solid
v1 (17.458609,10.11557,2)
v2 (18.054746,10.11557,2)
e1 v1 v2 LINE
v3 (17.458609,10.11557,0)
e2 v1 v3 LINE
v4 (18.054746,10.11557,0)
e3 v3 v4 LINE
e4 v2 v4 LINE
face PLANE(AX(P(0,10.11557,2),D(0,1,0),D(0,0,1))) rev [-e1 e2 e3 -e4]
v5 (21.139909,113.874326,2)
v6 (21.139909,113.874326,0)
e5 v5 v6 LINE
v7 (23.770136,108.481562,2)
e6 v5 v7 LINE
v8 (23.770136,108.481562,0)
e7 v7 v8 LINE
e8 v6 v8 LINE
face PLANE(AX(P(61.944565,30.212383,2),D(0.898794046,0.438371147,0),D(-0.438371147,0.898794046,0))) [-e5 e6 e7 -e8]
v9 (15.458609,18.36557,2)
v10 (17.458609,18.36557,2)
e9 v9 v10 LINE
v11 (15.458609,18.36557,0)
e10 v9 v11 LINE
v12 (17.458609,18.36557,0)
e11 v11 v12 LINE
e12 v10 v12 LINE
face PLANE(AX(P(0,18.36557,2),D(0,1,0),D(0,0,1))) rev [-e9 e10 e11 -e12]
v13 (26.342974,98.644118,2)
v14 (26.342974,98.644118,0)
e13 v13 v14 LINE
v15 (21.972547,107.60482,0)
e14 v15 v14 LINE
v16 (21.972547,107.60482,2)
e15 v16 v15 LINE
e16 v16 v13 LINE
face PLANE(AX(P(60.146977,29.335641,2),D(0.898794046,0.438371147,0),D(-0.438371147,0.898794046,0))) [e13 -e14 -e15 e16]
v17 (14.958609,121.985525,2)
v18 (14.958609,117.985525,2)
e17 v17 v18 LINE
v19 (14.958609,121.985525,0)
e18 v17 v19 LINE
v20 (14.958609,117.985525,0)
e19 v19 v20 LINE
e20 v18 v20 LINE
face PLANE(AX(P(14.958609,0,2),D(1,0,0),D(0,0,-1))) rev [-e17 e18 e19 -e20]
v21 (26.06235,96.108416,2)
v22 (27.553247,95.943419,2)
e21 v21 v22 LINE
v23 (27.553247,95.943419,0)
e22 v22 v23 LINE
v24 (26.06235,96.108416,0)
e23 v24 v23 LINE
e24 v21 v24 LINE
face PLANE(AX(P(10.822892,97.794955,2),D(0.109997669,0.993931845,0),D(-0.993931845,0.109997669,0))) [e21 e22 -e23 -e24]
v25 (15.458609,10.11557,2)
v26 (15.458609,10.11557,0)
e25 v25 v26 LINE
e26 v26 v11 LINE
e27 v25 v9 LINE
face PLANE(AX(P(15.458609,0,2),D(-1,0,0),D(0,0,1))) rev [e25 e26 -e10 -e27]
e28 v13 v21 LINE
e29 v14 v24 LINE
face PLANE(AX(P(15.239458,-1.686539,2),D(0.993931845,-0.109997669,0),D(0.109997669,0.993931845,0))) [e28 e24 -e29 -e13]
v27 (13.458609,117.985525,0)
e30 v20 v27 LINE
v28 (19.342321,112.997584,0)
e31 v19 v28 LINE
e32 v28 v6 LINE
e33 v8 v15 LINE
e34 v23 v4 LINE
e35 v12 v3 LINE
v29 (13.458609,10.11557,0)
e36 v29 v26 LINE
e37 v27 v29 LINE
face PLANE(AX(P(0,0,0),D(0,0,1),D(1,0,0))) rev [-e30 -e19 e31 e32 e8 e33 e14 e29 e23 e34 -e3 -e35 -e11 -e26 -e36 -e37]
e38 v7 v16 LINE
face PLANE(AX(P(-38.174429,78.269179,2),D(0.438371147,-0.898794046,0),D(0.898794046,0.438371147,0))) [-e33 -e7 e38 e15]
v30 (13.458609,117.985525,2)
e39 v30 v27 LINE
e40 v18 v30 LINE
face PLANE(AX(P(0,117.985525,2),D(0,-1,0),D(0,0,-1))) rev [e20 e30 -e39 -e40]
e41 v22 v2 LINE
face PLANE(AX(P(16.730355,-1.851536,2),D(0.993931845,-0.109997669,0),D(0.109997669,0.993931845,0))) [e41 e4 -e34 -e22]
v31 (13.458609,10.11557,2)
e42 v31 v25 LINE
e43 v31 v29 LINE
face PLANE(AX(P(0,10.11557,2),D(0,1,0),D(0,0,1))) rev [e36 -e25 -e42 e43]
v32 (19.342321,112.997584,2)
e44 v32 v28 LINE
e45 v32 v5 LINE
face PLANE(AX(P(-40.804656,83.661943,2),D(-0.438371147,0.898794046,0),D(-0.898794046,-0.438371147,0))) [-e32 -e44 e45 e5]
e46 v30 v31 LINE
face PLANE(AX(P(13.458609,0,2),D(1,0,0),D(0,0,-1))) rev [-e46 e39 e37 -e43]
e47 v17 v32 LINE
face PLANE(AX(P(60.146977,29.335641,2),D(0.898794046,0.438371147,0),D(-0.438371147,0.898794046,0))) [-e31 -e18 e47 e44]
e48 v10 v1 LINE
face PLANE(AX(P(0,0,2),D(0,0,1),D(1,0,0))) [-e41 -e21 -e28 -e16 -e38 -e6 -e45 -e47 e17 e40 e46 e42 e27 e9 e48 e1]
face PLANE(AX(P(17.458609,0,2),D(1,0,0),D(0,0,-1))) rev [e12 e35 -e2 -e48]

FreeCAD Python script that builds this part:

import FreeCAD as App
import Part
import Sketcher

doc = App.newDocument("Part")
body = doc.addObject("PartDesign::Body", "Body")

# Sketch on XY plane
sketch1 = body.newObject("Sketcher::SketchObject", "Sketch")
sketch1.AttachmentSupport = (doc.getObject("XY_Plane"), [""])
sketch1.MapMode = "FlatFace"
sketch1.addGeometry([
    Part.LineSegment(App.Vector(27.553247, 95.943419, 0), App.Vector(26.06235, 96.108416, 0)),  # 0
    Part.LineSegment(App.Vector(26.06235, 96.108416, 0), App.Vector(26.342974, 98.644118, 0)),  # 1
    Part.LineSegment(App.Vector(26.342974, 98.644118, 0), App.Vector(21.972547, 107.60482, 0)),  # 2
    Part.LineSegment(App.Vector(21.972547, 107.60482, 0), App.Vector(23.770136, 108.481562, 0)),  # 3
    Part.LineSegment(App.Vector(23.770136, 108.481562, 0), App.Vector(21.139909, 113.874326, 0)),  # 4
    Part.LineSegment(App.Vector(21.139909, 113.874326, 0), App.Vector(19.342321, 112.997584, 0)),  # 5
    Part.LineSegment(App.Vector(19.342321, 112.997584, 0), App.Vector(14.958609, 121.985525, 0)),  # 6
    Part.LineSegment(App.Vector(14.958609, 121.985525, 0), App.Vector(14.958609, 117.985525, 0)),  # 7
    Part.LineSegment(App.Vector(14.958609, 117.985525, 0), App.Vector(13.458609, 117.985525, 0)),  # 8
    Part.LineSegment(App.Vector(13.458609, 117.985525, 0), App.Vector(13.458609, 10.11557, 0)),  # 9
    Part.LineSegment(App.Vector(13.458609, 10.11557, 0), App.Vector(15.458609, 10.11557, 0)),  # 10
    Part.LineSegment(App.Vector(15.458609, 10.11557, 0), App.Vector(15.458609, 18.36557, 0)),  # 11
    Part.LineSegment(App.Vector(15.458609, 18.36557, 0), App.Vector(17.458609, 18.36557, 0)),  # 12
    Part.LineSegment(App.Vector(17.458609, 18.36557, 0), App.Vector(17.458609, 10.11557, 0)),  # 13
    Part.LineSegment(App.Vector(17.458609, 10.11557, 0), App.Vector(18.054746, 10.11557, 0)),  # 14
    Part.LineSegment(App.Vector(18.054746, 10.11557, 0), App.Vector(27.553247, 95.943419, 0)),  # 15
], False)
sketch1.addConstraint([
    Sketcher.Constraint("Coincident", 0, 2, 1, 1),
    Sketcher.Constraint("Coincident", 1, 2, 2, 1),
    Sketcher.Constraint("Coincident", 2, 2, 3, 1),
    Sketcher.Constraint("Coincident", 3, 2, 4, 1),
    Sketcher.Constraint("Coincident", 4, 2, 5, 1),
    Sketcher.Constraint("Coincident", 5, 2, 6, 1),
    Sketcher.Constraint("Coincident", 6, 2, 7, 1),
    Sketcher.Constraint("Coincident", 7, 2, 8, 1),
    Sketcher.Constraint("Coincident", 8, 2, 9, 1),
    Sketcher.Constraint("Coincident", 9, 2, 10, 1),
    Sketcher.Constraint("Coincident", 10, 2, 11, 1),
    Sketcher.Constraint("Coincident", 11, 2, 12, 1),
    Sketcher.Constraint("Coincident", 12, 2, 13, 1),
    Sketcher.Constraint("Coincident", 13, 2, 14, 1),
    Sketcher.Constraint("Coincident", 14, 2, 15, 1),
    Sketcher.Constraint("Coincident", 15, 2, 0, 1),
    Sketcher.Constraint("Vertical", 7),
    Sketcher.Constraint("Horizontal", 8),
    Sketcher.Constraint("Vertical", 9),
    Sketcher.Constraint("Horizontal", 10),
    Sketcher.Constraint("Vertical", 11),
    Sketcher.Constraint("Horizontal", 12),
    Sketcher.Constraint("Vertical", 13),
    Sketcher.Constraint("Horizontal", 14),
    Sketcher.Constraint("DistanceX", 10, 1, 10, 2, 2.0),
    Sketcher.Constraint("DistanceX", 12, 1, 12, 2, 2.0),
    Sketcher.Constraint("DistanceY", 7, 2, 7, 1, 4.0),
    Sketcher.Constraint("Distance", 3, 2.0),
    Sketcher.Constraint("Distance", 4, 6.0),
    Sketcher.Constraint("Distance", 5, 2.0),
    Sketcher.Constraint("Distance", 6, 10.0),
    Sketcher.Constraint("DistanceX", 8, 2, 8, 1, 1.5),
    Sketcher.Constraint("Distance", 0, 1.5),
    Sketcher.Constraint("DistanceY", 11, 1, 11, 2, 8.25),
    Sketcher.Constraint("DistanceY", 13, 2, 13, 1, 8.25),
    Sketcher.Constraint("DistanceX", 6, 2, 4, 2, 6.1813),
    Sketcher.Constraint("DistanceY", 4, 2, 6, 2, 8.111198),
    Sketcher.Constraint("DistanceY", 15, 2, 1, 2, 2.700699),
    Sketcher.Constraint("DistanceX", 2, 2, 15, 2, 5.5807),
    Sketcher.Constraint("DistanceY", 15, 2, 2, 2, 11.661401),
    Sketcher.Constraint("DistanceX", 14, 1, 14, 2, 0.596137),
    Sketcher.Constraint("DistanceY", 9, 2, 9, 1, 107.869954),
    Sketcher.Constraint("DistanceX", -1, 1, 0, 2, 26.06235),
    Sketcher.Constraint("DistanceY", -1, 1, 2, 2, 107.60482),
    Sketcher.Constraint("DistanceX", -1, 1, 4, 2, 21.139909),
    Sketcher.Constraint("DistanceY", -1, 1, 9, 2, 10.11557),
    Sketcher.Constraint("DistanceX", 2, 2, 3, 2, 1.797588),
    Sketcher.Constraint("DistanceX", 3, 2, 1, 2, 2.572838),
])
pad1 = body.newObject("PartDesign::Pad", "Pad")
pad1.Profile = sketch1
pad1.Length = 2

doc.recompute()
